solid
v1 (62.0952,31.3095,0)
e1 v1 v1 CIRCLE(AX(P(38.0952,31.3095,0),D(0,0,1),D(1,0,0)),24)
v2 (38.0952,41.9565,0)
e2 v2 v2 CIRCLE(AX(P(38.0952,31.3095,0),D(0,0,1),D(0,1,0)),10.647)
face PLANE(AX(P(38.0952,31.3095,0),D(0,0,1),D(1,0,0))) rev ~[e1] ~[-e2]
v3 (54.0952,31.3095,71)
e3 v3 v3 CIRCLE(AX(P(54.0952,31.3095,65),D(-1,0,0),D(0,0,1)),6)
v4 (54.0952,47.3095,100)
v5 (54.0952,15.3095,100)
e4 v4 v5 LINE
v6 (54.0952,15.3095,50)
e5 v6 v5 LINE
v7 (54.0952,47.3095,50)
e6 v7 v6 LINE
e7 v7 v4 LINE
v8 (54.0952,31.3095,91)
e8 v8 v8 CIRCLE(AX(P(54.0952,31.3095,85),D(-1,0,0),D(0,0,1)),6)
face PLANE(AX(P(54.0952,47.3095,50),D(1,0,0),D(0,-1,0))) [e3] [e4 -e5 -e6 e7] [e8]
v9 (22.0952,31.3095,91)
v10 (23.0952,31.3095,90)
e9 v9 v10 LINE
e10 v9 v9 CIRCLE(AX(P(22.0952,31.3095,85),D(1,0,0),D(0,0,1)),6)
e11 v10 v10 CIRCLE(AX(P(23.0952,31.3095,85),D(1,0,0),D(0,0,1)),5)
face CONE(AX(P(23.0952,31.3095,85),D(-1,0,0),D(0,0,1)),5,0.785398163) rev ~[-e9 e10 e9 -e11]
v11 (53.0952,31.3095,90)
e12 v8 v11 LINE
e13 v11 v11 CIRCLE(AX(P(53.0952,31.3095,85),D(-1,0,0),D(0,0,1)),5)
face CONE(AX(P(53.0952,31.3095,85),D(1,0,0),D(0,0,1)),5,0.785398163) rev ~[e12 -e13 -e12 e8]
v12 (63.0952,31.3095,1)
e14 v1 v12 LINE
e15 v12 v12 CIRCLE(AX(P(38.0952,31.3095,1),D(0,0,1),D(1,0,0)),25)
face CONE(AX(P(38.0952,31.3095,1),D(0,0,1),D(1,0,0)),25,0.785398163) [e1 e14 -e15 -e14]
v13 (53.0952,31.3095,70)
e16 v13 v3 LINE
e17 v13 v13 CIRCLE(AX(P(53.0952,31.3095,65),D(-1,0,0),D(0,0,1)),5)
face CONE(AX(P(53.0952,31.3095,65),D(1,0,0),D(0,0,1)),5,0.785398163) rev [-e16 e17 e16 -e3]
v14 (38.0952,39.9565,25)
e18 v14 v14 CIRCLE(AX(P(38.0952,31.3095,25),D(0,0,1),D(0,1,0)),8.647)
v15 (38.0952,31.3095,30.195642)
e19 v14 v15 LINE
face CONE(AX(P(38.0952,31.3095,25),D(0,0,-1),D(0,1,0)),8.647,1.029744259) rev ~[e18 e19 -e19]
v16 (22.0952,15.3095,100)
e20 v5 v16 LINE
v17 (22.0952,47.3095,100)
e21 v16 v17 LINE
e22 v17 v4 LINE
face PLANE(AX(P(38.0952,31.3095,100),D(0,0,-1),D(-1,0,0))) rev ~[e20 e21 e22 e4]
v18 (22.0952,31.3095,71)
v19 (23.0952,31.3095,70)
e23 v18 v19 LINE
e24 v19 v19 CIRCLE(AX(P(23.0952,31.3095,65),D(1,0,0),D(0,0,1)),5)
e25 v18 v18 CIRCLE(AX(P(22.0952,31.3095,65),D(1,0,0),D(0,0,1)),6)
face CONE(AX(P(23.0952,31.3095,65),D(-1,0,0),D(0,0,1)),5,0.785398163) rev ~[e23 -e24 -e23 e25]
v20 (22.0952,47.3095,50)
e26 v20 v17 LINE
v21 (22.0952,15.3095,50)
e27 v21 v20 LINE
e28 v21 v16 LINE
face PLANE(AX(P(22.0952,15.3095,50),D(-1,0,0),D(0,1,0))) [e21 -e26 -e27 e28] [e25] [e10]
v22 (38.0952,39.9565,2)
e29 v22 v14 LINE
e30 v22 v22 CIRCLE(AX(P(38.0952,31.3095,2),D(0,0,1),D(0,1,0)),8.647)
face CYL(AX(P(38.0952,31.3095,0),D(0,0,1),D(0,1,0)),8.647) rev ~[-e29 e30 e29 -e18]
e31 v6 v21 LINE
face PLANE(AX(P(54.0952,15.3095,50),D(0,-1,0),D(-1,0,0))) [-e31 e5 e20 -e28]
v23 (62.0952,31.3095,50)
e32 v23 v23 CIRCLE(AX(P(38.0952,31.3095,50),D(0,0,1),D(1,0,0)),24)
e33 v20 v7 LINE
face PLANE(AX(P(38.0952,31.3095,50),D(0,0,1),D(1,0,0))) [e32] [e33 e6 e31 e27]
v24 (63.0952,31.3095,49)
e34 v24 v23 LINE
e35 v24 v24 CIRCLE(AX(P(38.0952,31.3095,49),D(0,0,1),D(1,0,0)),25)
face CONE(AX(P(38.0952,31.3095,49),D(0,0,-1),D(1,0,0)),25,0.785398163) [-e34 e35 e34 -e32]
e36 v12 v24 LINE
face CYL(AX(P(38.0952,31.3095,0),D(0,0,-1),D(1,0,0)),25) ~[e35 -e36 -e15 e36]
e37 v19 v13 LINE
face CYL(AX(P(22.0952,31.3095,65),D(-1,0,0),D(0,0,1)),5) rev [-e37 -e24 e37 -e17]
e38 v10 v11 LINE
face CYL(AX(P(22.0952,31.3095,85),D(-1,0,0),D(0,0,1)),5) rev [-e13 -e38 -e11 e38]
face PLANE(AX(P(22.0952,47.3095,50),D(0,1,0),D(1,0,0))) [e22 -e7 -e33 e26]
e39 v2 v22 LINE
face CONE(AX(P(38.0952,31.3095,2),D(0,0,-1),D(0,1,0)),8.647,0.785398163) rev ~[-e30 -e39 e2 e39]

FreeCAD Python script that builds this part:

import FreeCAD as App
import Part
import Sketcher

V = App.Vector


def edges_at(feature, points):
    """Names of the edges that pass closest to the given points."""
    edges = feature.Shape.Edges
    near = lambda p: min(range(len(edges)), key=lambda i: edges[i].distToShape(Part.Vertex(*p))[0])
    return sorted({f"Edge{near(p) + 1}" for p in points})

doc = App.newDocument("Part")
body = doc.addObject("PartDesign::Body", "Body")

# Sketch on XY plane
sketch1 = doc.addObject("Sketcher::SketchObject", "Sketch")
body.addObject(sketch1)
sketch1.AttachmentSupport = (doc.XY_Plane, [""])
sketch1.MapMode = "FlatFace"
sketch1.addGeometry(Part.Circle(V(38.0952, 31.3095, 0), V(0, 0, 1), 25), False)
sketch1.addConstraint([
    Sketcher.Constraint("Diameter", 0, 50.0),
    Sketcher.Constraint("DistanceX", -1, 1, 0, 3, 38.0952),
    Sketcher.Constraint("DistanceY", -1, 1, 0, 3, 31.3095),
])
pad1 = doc.addObject("PartDesign::Pad", "Pad")
body.addObject(pad1)
pad1.Profile = sketch1
pad1.Length = 50

# Sketch on XY plane
sketch2 = doc.addObject("Sketcher::SketchObject", "Sketch001")
body.addObject(sketch2)
sketch2.AttachmentSupport = (doc.XY_Plane, [""])
sketch2.MapMode = "FlatFace"
sketch2.AttachmentOffset = App.Placement(V(0, 0, 50), App.Rotation())
sketch2.addGeometry([
    Part.LineSegment(V(54.0952, 47.3095, 0), V(22.0952, 47.3095, 0)),
    Part.LineSegment(V(22.0952, 47.3095, 0), V(22.0952, 15.3095, 0)),
    Part.LineSegment(V(22.0952, 15.3095, 0), V(54.0952, 15.3095, 0)),
    Part.LineSegment(V(54.0952, 15.3095, 0), V(54.0952, 47.3095, 0)),
], False)
sketch2.addConstraint([
    Sketcher.Constraint("Coincident", 0, 2, 1, 1),
    Sketcher.Constraint("Coincident", 1, 2, 2, 1),
    Sketcher.Constraint("Coincident", 2, 2, 3, 1),
    Sketcher.Constraint("Coincident", 3, 2, 0, 1),
    Sketcher.Constraint("Horizontal", 0),
    Sketcher.Constraint("Vertical", 1),
    Sketcher.Constraint("Horizontal", 2),
    Sketcher.Constraint("Vertical", 3),
    Sketcher.Constraint("Equal", 2, 1),
    Sketcher.Constraint("DistanceX", 0, 2, 0, 1, 32.0),
    Sketcher.Constraint("DistanceX", -1, 1, 0, 2, 22.0952),
    Sketcher.Constraint("DistanceY", -1, 1, 0, 2, 47.3095),
])
pad2 = doc.addObject("PartDesign::Pad", "Pad001")
body.addObject(pad2)
pad2.Profile = sketch2
pad2.Length = 50

# Sketch on YZ plane
sketch3 = doc.addObject("Sketcher::SketchObject", "Sketch002")
body.addObject(sketch3)
sketch3.AttachmentSupport = (doc.YZ_Plane, [""])
sketch3.MapMode = "FlatFace"
sketch3.AttachmentOffset = App.Placement(V(0, 0, 22.0952), App.Rotation())
sketch3.addGeometry(Part.Circle(V(31.3095, 85, 0), V(0, 0, 1), 5), False)
sketch3.addConstraint([
    Sketcher.Constraint("Diameter", 0, 10.0),
    Sketcher.Constraint("DistanceY", -1, 1, 0, 3, 85.0),
    Sketcher.Constraint("DistanceX", -1, 1, 0, 3, 31.3095),
])
doc.recompute()
hole = doc.addObject("PartDesign::Hole", "Hole")
body.addObject(hole)
hole.Profile = sketch3
hole.ThreadType = "None"
hole.Diameter = 10
hole.DepthType = "ThroughAll"
hole.Reversed = True

# Sketch on YZ plane
sketch4 = doc.addObject("Sketcher::SketchObject", "Sketch003")
body.addObject(sketch4)
sketch4.AttachmentSupport = (doc.YZ_Plane, [""])
sketch4.MapMode = "FlatFace"
sketch4.AttachmentOffset = App.Placement(V(0, 0, 22.0952), App.Rotation())
sketch4.addGeometry(Part.Circle(V(31.3095, 65, 0), V(0, 0, 1), 5), False)
sketch4.addConstraint([
    Sketcher.Constraint("Diameter", 0, 10.0),
    Sketcher.Constraint("DistanceY", -1, 1, 0, 3, 65.0),
    Sketcher.Constraint("DistanceX", -1, 1, 0, 3, 31.3095),
])
doc.recompute()
hole2 = doc.addObject("PartDesign::Hole", "Hole001")
body.addObject(hole2)
hole2.Profile = sketch4
hole2.ThreadType = "None"
hole2.Diameter = 10
hole2.DepthType = "ThroughAll"
hole2.Reversed = True

# Sketch on XY plane
sketch5 = doc.addObject("Sketcher::SketchObject", "Sketch004")
body.addObject(sketch5)
sketch5.AttachmentSupport = (doc.XY_Plane, [""])
sketch5.MapMode = "FlatFace"
sketch5.addGeometry(Part.Circle(V(38.0952, 31.3095, 0), V(0, 0, 1), 8.647), False)
sketch5.addConstraint([
    Sketcher.Constraint("Diameter", 0, 17.294),
    Sketcher.Constraint("DistanceX", -1, 1, 0, 3, 38.0952),
    Sketcher.Constraint("DistanceY", -1, 1, 0, 3, 31.3095),
])
doc.recompute()
hole3 = doc.addObject("PartDesign::Hole", "Hole002")
body.addObject(hole3)
hole3.Profile = sketch5
hole3.ThreadType = "None"
hole3.Diameter = 17.294
hole3.DepthType = "Dimension"
hole3.Depth = 25
hole3.DrillPoint = "Angled"
hole3.DrillPointAngle = 118
hole3.Reversed = True
doc.recompute()

chamfer = doc.addObject("PartDesign::Chamfer", "Chamfer")
body.addObject(chamfer)
chamfer.Base = (hole3, edges_at(hole3, [(38.095, 22.663, 0)]))
chamfer.Size = 2
doc.recompute()

chamfer2 = doc.addObject("PartDesign::Chamfer", "Chamfer001")
body.addObject(chamfer2)
chamfer2.Base = (chamfer, edges_at(chamfer, [(13.095, 31.309, 0)]))
chamfer2.Size = 1
doc.recompute()

chamfer3 = doc.addObject("PartDesign::Chamfer", "Chamfer002")
body.addObject(chamfer3)
chamfer3.Base = (chamfer2, edges_at(chamfer2, [(13.095, 31.309, 50)]))
chamfer3.Size = 1
doc.recompute()

chamfer4 = doc.addObject("PartDesign::Chamfer", "Chamfer003")
body.addObject(chamfer4)
chamfer4.Base = (chamfer3, edges_at(chamfer3, [(22.095, 31.309, 80), (54.095, 26.309, 85)]))
chamfer4.Size = 1
doc.recompute()

chamfer5 = doc.addObject("PartDesign::Chamfer", "Chamfer004")
body.addObject(chamfer5)
chamfer5.Base = (chamfer4, edges_at(chamfer4, [(22.095, 31.309, 60), (54.095, 26.309, 65)]))
chamfer5.Size = 1

doc.recompute()
